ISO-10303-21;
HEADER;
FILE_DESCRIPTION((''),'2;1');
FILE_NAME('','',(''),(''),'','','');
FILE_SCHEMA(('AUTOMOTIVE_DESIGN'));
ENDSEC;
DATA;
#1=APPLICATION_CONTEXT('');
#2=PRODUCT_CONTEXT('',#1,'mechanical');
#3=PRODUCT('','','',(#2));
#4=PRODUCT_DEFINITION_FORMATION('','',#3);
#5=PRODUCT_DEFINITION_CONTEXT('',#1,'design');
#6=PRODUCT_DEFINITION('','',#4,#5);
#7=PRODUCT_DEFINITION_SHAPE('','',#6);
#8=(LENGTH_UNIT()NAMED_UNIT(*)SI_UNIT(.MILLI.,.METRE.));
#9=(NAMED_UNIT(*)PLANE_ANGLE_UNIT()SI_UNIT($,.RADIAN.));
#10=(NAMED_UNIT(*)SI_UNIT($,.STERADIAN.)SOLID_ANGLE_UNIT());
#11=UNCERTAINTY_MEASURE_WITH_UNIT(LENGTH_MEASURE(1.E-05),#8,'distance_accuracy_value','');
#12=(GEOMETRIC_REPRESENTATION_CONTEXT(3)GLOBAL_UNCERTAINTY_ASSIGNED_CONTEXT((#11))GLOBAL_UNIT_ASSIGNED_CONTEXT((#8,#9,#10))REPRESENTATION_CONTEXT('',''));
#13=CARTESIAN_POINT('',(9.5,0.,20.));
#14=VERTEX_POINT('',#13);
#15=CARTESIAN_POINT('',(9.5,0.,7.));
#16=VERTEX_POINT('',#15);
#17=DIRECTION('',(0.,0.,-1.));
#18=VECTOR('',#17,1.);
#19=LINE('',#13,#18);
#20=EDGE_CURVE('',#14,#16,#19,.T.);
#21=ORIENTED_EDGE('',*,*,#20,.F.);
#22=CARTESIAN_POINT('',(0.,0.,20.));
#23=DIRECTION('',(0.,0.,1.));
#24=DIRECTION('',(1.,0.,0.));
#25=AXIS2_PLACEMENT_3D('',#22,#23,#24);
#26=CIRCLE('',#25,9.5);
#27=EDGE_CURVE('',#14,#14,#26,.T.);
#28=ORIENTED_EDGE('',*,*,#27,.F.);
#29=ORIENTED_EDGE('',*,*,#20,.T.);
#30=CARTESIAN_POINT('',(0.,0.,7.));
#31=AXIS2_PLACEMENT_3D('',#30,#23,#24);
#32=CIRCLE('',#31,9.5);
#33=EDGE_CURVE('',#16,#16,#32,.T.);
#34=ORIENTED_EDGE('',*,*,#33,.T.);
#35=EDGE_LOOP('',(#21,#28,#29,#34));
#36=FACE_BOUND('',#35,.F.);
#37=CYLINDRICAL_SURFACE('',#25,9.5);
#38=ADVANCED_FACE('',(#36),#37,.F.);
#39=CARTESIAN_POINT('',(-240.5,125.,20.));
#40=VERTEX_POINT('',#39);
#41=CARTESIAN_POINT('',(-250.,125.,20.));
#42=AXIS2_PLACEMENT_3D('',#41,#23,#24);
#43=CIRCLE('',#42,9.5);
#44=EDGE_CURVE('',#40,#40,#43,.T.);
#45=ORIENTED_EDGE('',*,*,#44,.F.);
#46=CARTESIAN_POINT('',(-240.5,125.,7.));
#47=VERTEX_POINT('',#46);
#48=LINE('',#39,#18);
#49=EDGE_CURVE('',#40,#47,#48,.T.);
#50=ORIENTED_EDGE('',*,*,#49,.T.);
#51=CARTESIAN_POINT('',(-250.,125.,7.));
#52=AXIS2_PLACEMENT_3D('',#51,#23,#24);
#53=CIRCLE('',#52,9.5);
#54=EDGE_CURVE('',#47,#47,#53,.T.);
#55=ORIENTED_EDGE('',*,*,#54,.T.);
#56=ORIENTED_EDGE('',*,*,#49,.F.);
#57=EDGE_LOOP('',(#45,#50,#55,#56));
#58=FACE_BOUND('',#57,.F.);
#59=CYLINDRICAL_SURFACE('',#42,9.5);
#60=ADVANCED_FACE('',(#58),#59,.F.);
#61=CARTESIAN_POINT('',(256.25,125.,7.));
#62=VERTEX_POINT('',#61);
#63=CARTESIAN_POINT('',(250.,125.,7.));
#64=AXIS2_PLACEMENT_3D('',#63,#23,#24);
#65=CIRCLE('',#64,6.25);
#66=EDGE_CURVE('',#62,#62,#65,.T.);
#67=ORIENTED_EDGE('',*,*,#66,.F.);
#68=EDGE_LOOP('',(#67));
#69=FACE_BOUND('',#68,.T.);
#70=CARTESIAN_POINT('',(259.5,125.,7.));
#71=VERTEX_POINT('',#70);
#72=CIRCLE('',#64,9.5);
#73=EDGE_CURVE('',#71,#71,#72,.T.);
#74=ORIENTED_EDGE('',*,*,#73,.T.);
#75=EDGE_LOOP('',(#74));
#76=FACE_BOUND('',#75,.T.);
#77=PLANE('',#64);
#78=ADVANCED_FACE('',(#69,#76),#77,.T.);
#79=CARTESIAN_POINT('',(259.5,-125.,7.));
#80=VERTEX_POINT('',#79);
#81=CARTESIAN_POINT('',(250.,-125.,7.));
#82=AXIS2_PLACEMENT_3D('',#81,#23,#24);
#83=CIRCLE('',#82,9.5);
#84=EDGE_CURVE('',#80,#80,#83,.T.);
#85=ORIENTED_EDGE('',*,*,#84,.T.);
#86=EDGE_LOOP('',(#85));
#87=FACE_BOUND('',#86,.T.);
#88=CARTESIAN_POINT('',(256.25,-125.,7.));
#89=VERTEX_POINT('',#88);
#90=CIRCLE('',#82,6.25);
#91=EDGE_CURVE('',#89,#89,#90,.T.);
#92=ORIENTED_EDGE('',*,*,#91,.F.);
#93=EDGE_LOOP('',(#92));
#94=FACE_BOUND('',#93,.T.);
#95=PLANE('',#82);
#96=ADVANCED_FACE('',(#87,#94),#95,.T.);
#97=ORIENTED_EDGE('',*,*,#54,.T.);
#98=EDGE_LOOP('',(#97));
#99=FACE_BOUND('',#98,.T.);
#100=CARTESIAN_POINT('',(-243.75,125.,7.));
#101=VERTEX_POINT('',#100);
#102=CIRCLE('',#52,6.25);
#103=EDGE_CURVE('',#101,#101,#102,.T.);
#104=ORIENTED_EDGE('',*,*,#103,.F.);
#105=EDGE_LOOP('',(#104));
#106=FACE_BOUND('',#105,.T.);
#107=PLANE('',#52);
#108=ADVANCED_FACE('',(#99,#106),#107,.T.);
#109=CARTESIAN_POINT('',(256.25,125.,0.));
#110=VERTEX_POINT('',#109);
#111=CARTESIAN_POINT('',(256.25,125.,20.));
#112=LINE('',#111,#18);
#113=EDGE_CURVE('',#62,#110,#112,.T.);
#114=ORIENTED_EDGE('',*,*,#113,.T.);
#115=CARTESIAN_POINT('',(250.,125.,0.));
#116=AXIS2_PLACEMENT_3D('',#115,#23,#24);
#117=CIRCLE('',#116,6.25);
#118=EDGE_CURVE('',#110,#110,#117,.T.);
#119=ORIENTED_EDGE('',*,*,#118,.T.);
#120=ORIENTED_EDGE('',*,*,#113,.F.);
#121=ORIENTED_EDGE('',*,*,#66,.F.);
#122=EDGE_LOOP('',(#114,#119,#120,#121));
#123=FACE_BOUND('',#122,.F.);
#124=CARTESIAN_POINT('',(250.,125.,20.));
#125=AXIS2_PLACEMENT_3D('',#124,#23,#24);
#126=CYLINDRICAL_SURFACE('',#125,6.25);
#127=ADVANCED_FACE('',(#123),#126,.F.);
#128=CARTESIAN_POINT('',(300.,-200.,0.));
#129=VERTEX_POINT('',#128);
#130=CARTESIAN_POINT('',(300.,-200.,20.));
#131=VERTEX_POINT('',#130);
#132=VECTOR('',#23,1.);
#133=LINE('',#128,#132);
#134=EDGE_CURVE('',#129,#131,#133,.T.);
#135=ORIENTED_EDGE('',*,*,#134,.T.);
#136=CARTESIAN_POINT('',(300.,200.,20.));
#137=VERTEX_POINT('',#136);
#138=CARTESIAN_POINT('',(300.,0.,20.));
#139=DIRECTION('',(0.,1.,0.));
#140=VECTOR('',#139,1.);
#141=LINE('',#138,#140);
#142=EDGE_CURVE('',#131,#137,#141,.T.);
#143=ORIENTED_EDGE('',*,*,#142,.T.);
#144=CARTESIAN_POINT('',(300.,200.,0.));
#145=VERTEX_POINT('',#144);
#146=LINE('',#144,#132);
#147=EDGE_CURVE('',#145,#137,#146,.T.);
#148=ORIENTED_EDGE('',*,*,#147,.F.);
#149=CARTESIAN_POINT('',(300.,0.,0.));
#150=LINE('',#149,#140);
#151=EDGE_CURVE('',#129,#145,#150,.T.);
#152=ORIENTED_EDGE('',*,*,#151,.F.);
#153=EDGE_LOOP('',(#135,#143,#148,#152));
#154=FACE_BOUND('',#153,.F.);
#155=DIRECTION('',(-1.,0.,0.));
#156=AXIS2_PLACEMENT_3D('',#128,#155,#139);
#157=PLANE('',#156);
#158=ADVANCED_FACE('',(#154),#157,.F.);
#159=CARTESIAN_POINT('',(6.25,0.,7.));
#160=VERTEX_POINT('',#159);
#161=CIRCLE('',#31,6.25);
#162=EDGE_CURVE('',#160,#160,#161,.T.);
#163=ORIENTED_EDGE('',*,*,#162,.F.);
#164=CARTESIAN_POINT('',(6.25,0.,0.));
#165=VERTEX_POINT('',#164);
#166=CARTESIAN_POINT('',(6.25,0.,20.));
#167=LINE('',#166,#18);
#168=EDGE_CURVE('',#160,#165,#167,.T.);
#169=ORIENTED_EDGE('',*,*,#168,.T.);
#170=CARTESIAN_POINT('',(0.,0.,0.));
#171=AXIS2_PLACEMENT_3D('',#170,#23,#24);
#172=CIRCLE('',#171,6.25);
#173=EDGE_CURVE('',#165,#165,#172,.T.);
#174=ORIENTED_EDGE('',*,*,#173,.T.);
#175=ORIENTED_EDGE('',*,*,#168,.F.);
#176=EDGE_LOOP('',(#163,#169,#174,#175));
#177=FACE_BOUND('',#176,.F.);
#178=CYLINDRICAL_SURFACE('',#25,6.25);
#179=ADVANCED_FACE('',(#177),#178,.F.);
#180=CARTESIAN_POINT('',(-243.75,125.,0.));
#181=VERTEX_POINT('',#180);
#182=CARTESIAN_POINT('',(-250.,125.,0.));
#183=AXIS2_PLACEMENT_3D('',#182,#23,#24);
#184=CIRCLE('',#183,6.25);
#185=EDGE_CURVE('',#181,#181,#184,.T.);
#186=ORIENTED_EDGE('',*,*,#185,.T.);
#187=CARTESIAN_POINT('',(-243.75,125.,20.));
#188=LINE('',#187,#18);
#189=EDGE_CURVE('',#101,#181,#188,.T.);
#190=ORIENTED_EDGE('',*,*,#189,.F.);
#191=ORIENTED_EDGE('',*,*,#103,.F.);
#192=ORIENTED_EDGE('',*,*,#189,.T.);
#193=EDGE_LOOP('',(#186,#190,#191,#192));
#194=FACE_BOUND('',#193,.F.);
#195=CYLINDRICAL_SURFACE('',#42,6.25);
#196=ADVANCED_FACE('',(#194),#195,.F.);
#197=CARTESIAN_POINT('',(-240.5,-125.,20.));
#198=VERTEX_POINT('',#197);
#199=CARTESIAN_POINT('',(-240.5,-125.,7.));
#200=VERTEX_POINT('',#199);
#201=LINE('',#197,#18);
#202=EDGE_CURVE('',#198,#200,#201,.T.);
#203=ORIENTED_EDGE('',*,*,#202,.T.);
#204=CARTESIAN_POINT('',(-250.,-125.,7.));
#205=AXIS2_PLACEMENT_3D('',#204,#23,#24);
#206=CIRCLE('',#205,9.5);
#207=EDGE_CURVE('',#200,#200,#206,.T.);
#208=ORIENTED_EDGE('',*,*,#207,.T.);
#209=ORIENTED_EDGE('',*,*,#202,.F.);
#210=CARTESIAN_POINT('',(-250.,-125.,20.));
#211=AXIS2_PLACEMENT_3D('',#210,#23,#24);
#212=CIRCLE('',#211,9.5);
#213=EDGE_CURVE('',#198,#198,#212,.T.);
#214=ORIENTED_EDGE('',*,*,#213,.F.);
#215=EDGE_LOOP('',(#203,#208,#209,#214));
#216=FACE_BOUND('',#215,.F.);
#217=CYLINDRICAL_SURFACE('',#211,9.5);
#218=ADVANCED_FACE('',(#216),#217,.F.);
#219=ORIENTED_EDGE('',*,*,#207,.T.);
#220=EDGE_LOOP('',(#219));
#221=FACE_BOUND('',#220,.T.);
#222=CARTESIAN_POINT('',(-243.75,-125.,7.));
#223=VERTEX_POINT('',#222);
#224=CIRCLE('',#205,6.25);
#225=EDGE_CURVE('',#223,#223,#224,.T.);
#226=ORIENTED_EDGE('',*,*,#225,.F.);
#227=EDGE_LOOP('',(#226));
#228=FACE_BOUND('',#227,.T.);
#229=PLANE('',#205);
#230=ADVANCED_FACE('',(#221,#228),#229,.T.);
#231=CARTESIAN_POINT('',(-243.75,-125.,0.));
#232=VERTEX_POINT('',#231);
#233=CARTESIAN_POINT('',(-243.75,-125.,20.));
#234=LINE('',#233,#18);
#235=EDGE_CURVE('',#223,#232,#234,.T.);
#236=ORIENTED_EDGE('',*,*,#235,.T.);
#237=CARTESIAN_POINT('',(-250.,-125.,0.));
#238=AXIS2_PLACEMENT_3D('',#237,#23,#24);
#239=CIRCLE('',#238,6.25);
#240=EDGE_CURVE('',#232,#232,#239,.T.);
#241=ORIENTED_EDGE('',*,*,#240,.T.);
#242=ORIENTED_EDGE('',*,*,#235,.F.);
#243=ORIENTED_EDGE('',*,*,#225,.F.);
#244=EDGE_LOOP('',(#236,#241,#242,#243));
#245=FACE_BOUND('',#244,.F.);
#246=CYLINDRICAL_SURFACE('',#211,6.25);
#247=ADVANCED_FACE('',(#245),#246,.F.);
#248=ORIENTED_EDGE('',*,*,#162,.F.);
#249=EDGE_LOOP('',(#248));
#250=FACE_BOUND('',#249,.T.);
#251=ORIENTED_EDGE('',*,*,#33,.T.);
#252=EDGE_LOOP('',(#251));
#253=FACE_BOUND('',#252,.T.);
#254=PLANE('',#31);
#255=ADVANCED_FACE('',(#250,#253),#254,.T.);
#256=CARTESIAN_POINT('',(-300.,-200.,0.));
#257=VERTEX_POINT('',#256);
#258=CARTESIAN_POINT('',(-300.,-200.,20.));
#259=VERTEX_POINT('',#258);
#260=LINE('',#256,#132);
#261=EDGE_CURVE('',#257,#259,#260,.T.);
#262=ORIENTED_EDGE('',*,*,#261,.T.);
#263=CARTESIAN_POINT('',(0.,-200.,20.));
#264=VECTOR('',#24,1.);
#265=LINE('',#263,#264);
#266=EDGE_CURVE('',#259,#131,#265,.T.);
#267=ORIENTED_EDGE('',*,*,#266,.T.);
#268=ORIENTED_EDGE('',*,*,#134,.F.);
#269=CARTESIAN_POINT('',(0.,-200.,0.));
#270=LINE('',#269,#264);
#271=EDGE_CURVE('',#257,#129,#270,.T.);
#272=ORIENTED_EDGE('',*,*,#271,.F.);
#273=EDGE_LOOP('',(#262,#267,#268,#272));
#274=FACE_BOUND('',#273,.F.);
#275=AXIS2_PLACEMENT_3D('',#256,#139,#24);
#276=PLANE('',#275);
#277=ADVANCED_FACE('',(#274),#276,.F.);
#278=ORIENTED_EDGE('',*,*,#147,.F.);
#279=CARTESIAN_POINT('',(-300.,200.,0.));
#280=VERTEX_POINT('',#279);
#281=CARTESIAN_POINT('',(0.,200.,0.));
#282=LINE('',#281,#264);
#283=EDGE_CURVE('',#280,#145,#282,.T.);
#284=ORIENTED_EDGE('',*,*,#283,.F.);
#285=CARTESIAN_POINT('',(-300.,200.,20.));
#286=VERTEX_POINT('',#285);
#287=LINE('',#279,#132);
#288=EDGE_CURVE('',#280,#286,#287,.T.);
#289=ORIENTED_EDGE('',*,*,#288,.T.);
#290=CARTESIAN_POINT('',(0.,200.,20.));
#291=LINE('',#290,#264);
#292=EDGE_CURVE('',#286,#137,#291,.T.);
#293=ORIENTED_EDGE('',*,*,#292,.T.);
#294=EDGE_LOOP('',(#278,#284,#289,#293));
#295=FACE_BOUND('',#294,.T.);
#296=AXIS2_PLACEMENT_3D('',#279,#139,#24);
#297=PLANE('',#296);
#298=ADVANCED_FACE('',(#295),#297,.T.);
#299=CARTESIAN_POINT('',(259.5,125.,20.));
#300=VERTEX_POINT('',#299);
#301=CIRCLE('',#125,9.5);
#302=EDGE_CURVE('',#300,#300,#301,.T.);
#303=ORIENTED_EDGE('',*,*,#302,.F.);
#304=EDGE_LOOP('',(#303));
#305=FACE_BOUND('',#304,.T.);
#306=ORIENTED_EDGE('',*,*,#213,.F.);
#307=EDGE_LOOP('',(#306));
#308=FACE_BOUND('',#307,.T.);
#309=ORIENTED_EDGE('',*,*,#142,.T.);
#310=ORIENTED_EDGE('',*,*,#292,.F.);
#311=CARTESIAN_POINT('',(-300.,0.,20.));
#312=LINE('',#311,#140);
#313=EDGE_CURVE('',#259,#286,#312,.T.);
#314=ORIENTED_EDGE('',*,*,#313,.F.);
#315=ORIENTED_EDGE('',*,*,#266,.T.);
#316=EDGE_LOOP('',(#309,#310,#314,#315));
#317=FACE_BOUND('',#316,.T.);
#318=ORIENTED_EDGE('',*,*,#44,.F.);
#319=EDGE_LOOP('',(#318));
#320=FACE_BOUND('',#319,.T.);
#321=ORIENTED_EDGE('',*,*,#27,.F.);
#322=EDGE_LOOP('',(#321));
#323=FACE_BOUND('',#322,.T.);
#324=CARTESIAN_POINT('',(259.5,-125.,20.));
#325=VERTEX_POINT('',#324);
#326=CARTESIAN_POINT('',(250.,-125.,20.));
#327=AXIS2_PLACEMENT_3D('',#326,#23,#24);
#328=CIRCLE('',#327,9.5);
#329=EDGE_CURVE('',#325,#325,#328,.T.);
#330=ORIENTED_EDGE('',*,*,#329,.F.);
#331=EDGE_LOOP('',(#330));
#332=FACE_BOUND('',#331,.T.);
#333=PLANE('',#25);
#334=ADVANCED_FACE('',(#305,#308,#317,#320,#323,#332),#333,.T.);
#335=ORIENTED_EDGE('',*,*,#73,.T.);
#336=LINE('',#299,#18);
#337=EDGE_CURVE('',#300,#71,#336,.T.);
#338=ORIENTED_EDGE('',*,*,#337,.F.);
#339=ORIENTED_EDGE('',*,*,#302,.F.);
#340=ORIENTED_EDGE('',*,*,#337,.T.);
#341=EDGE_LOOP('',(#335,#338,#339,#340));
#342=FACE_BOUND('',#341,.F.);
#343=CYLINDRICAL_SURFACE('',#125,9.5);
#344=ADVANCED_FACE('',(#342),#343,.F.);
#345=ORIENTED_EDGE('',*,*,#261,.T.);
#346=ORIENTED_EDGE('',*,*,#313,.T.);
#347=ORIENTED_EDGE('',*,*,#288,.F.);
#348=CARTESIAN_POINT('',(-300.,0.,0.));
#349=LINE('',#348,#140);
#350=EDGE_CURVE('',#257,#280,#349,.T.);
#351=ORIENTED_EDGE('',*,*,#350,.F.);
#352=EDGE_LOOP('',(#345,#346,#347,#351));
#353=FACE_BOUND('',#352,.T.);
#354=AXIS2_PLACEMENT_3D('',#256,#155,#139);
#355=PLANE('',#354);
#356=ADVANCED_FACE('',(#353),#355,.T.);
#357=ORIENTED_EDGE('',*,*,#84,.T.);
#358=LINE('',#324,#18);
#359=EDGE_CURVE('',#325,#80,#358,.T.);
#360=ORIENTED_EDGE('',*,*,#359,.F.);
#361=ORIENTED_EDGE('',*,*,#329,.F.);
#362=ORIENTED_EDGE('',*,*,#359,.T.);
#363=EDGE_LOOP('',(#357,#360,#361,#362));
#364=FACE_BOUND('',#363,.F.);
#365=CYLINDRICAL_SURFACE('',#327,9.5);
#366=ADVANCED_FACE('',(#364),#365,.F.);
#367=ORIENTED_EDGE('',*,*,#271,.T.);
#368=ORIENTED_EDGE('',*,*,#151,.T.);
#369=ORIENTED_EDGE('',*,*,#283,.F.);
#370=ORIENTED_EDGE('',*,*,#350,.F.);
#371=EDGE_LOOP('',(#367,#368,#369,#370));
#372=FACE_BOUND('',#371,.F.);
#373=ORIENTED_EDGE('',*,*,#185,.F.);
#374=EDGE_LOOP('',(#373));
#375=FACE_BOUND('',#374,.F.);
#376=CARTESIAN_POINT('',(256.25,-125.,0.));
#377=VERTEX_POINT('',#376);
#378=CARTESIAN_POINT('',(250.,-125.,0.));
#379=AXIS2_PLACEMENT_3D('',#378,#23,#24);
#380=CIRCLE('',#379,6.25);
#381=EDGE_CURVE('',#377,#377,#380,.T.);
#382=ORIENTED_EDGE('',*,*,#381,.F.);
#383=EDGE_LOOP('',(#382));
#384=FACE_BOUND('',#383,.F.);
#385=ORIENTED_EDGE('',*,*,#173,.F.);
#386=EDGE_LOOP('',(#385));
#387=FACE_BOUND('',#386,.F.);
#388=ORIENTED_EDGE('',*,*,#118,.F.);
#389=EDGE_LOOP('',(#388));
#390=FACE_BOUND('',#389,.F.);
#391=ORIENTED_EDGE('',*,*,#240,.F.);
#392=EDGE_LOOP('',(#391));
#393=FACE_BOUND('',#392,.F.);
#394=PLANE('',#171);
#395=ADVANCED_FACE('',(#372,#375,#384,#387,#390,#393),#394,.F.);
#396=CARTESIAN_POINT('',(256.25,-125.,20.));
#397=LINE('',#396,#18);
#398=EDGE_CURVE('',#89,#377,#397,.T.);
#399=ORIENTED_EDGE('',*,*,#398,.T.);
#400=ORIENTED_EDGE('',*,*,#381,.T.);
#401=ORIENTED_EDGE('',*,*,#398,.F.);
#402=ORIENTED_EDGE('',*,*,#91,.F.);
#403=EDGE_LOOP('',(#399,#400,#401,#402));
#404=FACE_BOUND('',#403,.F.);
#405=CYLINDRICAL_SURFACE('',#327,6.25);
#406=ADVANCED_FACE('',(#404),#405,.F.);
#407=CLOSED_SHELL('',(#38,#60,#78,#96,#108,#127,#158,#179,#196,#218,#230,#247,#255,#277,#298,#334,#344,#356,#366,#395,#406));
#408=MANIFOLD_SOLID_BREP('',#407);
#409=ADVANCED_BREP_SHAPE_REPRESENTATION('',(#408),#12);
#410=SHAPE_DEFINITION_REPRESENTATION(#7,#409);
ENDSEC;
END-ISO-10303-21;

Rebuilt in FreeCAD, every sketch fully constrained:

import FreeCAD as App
import Part
import Sketcher

V = App.Vector

doc = App.newDocument("Part")
params = doc.addObject("Spreadsheet::Sheet", "Params")
for row, (alias, value) in enumerate([
    ("sketch1_width", "600 mm"),
    ("sketch1_height", "400 mm"),
    ("pad1_length", "20 mm"),
    ("sketch2_diameter", "12.5 mm"),
    ("pocket1_length", "25 mm"),
    ("sketch3_diameter", "19 mm"),
    ("pocket2_length", "13 mm"),
], start=1):
    params.set(f"A{row}", alias)
    params.set(f"B{row}", "=" + value)
    params.setAlias(f"B{row}", alias)

body = doc.addObject("PartDesign::Body", "Body")

sketch1 = body.newObject("Sketcher::SketchObject", "Sketch")
sketch1.AttachmentSupport = (doc.getObject("XY_Plane"), [""])
sketch1.MapMode = "FlatFace"
sketch1.addGeometry([
    Part.LineSegment(V(-300, 200, 0), V(-300, -200, 0)),
    Part.LineSegment(V(-300, -200, 0), V(300, -200, 0)),
    Part.LineSegment(V(300, -200, 0), V(300, 200, 0)),
    Part.LineSegment(V(300, 200, 0), V(-300, 200, 0)),
], False)
sketch1.addConstraint([
    Sketcher.Constraint("Coincident", 0, 2, 1, 1),
    Sketcher.Constraint("Coincident", 1, 2, 2, 1),
    Sketcher.Constraint("Coincident", 2, 2, 3, 1),
    Sketcher.Constraint("Coincident", 3, 2, 0, 1),
    Sketcher.Constraint("Vertical", 0),
    Sketcher.Constraint("Horizontal", 1),
    Sketcher.Constraint("Vertical", 2),
    Sketcher.Constraint("Horizontal", 3),
    Sketcher.Constraint("Symmetric", 0, 2, 2, 2, -1, 1),
    Sketcher.Constraint("DistanceX", 1, 1, 1, 2, 600.0),
    Sketcher.Constraint("DistanceY", 0, 2, 0, 1, 400.0),
])
sketch1.setExpression("Constraints[9]", "Params.sketch1_width")
sketch1.setExpression("Constraints[10]", "Params.sketch1_height")
pad1 = body.newObject("PartDesign::Pad", "Pad")
pad1.Profile = sketch1
pad1.setExpression("Length", "Params.pad1_length")

sketch2 = body.newObject("Sketcher::SketchObject", "Sketch001")
sketch2.AttachmentSupport = (doc.getObject("XY_Plane"), [""])
sketch2.MapMode = "FlatFace"
sketch2.AttachmentOffset = App.Placement(V(0, 0, 20), App.Rotation())
sketch2.addGeometry([
    Part.Circle(V(-250, 125, 0), V(0, 0, 1), 6.25),
    Part.Circle(V(-250, -125, 0), V(0, 0, 1), 6.25),
    Part.Circle(V(250, 125, 0), V(0, 0, 1), 6.25),
    Part.Circle(V(250, -125, 0), V(0, 0, 1), 6.25),
    Part.Circle(V(0, 0, 0), V(0, 0, 1), 6.25),
], False)
sketch2.addConstraint([
    Sketcher.Constraint("Coincident", 4, 3, -1, 1),
    Sketcher.Constraint("Equal", 0, 1),
    Sketcher.Constraint("Equal", 1, 2),
    Sketcher.Constraint("Equal", 2, 3),
    Sketcher.Constraint("Equal", 3, 4),
    Sketcher.Constraint("Symmetric", 1, 3, 2, 3, -1, 1),
    Sketcher.Constraint("Symmetric", 0, 3, 3, 3, -1, 1),
    Sketcher.Constraint("Symmetric", 0, 3, 2, 3, -2),
    Sketcher.Constraint("Diameter", 0, 12.5),
    Sketcher.Constraint("DistanceX", 0, 3, -1, 1, 250.0),
    Sketcher.Constraint("DistanceY", -1, 1, 0, 3, 125.0),
])
sketch2.setExpression("Constraints[8]", "Params.sketch2_diameter")
pocket1 = body.newObject("PartDesign::Pocket", "Pocket")
pocket1.Profile = sketch2
pocket1.setExpression("Length", "Params.pocket1_length")

sketch3 = body.newObject("Sketcher::SketchObject", "Sketch002")
sketch3.AttachmentSupport = (doc.getObject("XY_Plane"), [""])
sketch3.MapMode = "FlatFace"
sketch3.AttachmentOffset = App.Placement(V(0, 0, 20), App.Rotation())
sketch3.addGeometry([
    Part.Circle(V(250, 125, 0), V(0, 0, 1), 9.5),
    Part.Circle(V(250, -125, 0), V(0, 0, 1), 9.5),
    Part.Circle(V(0, 0, 0), V(0, 0, 1), 9.5),
    Part.Circle(V(-250, 125, 0), V(0, 0, 1), 9.5),
    Part.Circle(V(-250, -125, 0), V(0, 0, 1), 9.5),
], False)
sketch3.addConstraint([
    Sketcher.Constraint("Coincident", 2, 3, -1, 1),
    Sketcher.Constraint("Equal", 0, 1),
    Sketcher.Constraint("Equal", 1, 2),
    Sketcher.Constraint("Equal", 2, 3),
    Sketcher.Constraint("Equal", 3, 4),
    Sketcher.Constraint("Symmetric", 1, 3, 3, 3, -1, 1),
    Sketcher.Constraint("Symmetric", 0, 3, 4, 3, -1, 1),
    Sketcher.Constraint("Symmetric", 0, 3, 3, 3, -2),
    Sketcher.Constraint("Diameter", 0, 19.0),
    Sketcher.Constraint("DistanceX", -1, 1, 0, 3, 250.0),
    Sketcher.Constraint("DistanceY", -1, 1, 0, 3, 125.0),
])
sketch3.setExpression("Constraints[8]", "Params.sketch3_diameter")
pocket2 = body.newObject("PartDesign::Pocket", "Pocket001")
pocket2.Profile = sketch3
pocket2.setExpression("Length", "Params.pocket2_length")

doc.recompute()
